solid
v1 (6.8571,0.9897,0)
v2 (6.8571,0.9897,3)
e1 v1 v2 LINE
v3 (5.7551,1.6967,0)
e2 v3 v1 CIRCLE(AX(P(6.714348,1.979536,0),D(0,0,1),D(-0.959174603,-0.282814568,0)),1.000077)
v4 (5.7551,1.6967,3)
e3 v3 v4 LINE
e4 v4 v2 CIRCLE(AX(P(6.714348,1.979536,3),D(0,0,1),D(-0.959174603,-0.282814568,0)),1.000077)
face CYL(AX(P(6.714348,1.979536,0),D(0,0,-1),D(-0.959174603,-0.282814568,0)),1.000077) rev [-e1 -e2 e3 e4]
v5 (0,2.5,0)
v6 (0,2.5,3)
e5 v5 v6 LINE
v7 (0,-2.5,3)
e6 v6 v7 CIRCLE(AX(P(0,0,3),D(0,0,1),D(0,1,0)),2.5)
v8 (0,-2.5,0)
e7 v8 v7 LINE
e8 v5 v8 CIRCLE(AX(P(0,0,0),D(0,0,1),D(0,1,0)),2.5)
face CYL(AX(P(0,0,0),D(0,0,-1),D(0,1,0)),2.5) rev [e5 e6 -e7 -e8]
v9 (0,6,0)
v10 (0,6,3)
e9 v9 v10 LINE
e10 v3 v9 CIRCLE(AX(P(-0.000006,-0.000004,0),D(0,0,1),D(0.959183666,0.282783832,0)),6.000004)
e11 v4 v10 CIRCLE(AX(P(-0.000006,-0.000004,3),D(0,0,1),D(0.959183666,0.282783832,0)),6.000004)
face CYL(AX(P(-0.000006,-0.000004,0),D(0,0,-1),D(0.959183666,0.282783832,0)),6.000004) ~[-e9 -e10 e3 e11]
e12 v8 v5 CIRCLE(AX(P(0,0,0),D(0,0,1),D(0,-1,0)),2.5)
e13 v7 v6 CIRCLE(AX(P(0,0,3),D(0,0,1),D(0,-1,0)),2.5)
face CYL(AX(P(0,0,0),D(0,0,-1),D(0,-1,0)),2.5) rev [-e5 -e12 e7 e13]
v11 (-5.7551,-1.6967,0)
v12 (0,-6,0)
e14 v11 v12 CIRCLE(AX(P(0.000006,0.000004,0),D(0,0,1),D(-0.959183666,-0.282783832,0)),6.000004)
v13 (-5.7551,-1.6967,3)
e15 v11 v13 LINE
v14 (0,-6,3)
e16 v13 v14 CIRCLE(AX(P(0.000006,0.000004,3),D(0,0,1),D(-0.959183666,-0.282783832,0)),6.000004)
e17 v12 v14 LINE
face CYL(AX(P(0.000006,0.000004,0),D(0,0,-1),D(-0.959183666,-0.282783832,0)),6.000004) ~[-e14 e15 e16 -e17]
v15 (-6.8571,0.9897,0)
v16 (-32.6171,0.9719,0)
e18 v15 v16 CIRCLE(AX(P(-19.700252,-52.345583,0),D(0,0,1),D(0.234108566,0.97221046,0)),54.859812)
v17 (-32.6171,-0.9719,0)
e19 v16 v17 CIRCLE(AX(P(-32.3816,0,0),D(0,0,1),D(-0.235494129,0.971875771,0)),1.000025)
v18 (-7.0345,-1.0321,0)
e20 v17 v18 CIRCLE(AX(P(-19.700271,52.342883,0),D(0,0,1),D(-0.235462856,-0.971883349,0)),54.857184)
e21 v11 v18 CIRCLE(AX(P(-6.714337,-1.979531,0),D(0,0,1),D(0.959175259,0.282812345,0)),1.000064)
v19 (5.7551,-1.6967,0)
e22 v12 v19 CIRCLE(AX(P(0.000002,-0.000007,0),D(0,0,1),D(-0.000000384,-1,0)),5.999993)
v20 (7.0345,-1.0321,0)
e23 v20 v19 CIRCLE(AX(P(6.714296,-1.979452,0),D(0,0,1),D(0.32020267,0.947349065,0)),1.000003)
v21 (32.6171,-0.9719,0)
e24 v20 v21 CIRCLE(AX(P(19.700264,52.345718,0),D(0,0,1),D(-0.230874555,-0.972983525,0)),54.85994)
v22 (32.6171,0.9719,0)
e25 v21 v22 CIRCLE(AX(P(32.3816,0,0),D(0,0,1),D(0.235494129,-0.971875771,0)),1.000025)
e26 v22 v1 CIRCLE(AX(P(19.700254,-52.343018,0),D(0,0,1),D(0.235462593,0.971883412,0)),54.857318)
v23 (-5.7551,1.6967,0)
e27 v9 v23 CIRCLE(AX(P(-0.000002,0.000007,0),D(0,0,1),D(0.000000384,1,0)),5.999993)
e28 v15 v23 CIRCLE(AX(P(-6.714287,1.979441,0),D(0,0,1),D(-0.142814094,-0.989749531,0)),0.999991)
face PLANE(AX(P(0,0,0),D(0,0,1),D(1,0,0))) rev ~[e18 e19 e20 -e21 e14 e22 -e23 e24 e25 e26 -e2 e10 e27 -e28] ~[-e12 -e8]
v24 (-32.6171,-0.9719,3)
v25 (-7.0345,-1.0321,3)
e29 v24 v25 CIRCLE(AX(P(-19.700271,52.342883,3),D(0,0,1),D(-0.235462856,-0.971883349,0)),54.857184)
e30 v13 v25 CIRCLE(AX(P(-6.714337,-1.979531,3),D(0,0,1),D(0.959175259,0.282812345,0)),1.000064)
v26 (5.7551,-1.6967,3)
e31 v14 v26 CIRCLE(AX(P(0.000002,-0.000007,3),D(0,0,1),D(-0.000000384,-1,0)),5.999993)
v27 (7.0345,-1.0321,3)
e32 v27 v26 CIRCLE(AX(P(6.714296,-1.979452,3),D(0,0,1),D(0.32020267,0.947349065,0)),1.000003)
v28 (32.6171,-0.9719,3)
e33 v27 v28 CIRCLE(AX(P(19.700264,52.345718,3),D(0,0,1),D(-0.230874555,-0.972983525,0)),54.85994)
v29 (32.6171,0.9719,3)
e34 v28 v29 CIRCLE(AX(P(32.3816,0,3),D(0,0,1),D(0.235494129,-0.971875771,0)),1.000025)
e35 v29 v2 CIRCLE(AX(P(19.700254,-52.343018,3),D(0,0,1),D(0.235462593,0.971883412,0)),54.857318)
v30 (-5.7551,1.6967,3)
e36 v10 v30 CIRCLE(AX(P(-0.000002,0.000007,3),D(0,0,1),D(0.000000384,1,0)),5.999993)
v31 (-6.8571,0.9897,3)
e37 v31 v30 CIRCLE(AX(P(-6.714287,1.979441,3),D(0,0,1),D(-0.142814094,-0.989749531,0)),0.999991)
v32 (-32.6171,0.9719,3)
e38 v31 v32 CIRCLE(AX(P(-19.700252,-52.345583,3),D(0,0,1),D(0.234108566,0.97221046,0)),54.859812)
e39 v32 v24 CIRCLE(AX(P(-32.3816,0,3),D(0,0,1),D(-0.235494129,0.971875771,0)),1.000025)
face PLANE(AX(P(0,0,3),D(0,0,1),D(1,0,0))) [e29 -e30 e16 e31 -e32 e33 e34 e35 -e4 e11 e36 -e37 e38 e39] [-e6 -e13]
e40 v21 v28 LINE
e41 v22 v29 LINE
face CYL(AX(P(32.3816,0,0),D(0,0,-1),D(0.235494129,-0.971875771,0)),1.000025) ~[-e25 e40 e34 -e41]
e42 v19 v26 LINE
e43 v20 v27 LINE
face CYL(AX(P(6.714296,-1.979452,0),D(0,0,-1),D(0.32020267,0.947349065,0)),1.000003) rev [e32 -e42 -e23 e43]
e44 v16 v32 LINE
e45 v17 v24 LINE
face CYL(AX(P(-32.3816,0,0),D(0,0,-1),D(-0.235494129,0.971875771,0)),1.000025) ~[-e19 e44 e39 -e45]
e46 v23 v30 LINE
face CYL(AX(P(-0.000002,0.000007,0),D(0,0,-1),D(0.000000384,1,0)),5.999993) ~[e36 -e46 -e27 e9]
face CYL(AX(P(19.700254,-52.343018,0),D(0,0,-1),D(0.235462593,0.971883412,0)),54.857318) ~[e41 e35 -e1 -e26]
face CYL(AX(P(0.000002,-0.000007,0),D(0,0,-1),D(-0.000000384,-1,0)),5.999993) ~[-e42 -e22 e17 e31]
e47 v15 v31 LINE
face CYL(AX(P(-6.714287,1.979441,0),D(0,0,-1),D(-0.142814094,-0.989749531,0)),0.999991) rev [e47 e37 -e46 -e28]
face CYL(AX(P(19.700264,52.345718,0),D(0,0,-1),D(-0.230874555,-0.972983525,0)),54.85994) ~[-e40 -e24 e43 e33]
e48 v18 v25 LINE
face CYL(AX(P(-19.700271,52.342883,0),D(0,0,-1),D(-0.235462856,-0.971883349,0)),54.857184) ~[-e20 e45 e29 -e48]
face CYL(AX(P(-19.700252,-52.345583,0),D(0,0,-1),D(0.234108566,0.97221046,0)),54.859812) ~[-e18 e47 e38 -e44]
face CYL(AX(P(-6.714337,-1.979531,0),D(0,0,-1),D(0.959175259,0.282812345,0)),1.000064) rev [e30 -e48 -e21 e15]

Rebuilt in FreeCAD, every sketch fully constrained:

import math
import FreeCAD as App
import Part
import Sketcher
Q = App.Units.Quantity

doc = App.newDocument("Part")
body = doc.addObject("PartDesign::Body", "Body")

sketch1 = body.newObject("Sketcher::SketchObject", "Sketch")
sketch1.AttachmentSupport = (doc.getObject("XY_Plane"), [""])
sketch1.MapMode = "FlatFace"
sketch1.addGeometry(Part.ArcOfCircle(Part.Circle(App.Vector(-19.700252, -52.345583, 0), App.Vector(0, 0, 1), 54.859812), math.radians(76.460918), math.radians(103.618264)), False)
sketch1.addGeometry(Part.ArcOfCircle(Part.Circle(App.Vector(-32.3816, 0, 0), App.Vector(0, 0, 1), 1.000025), math.radians(103.620752), math.radians(256.379248)), False)
sketch1.addGeometry(Part.ArcOfCircle(Part.Circle(App.Vector(-19.700271, 52.342883, 0), App.Vector(0, 0, 1), 54.857184), math.radians(-103.618908), math.radians(-76.650744)), False)
sketch1.addGeometry(Part.ArcOfCircle(Part.Circle(App.Vector(-6.7143, -1.9795, 0), App.Vector(0, 0, 1), 1.00002), math.radians(16.427047), math.radians(108.674103)), False)
sketch1.addGeometry(Part.ArcOfCircle(Part.Circle(App.Vector(0, 0, 0), App.Vector(0, 0, 1), 6), math.radians(-163.573599), math.radians(-90)), False)
sketch1.addGeometry(Part.ArcOfCircle(Part.Circle(App.Vector(0, 0, 0), App.Vector(0, 0, 1), 5.999997), math.radians(-90), math.radians(-16.426401)), False)
sketch1.addGeometry(Part.ArcOfCircle(Part.Circle(App.Vector(6.7143, -1.9795, 0), App.Vector(0, 0, 1), 1.000047), math.radians(71.325897), math.radians(163.572953)), False)
sketch1.addGeometry(Part.ArcOfCircle(Part.Circle(App.Vector(19.700264, 52.345718, 0), App.Vector(0, 0, 1), 54.85994), math.radians(-103.348566), math.radians(-76.381782)), False)
sketch1.addGeometry(Part.ArcOfCircle(Part.Circle(App.Vector(32.3816, 0, 0), App.Vector(0, 0, 1), 1.000025), math.radians(-76.379248), math.radians(76.379248)), False)
sketch1.addGeometry(Part.ArcOfCircle(Part.Circle(App.Vector(19.700254, -52.343018, 0), App.Vector(0, 0, 1), 54.857318), math.radians(76.381107), math.radians(103.539711)), False)
sketch1.addGeometry(Part.ArcOfCircle(Part.Circle(App.Vector(6.7143, 1.9795, 0), App.Vector(0, 0, 1), 1.00002), math.radians(-163.572953), math.radians(-81.790494)), False)
sketch1.addGeometry(Part.ArcOfCircle(Part.Circle(App.Vector(0, 0, 0), App.Vector(0, 0, 1), 6), math.radians(16.426401), math.radians(90)), False)
sketch1.addGeometry(Part.ArcOfCircle(Part.Circle(App.Vector(0, 0, 0), App.Vector(0, 0, 1), 5.999997), math.radians(90), math.radians(163.573599)), False)
sketch1.addGeometry(Part.ArcOfCircle(Part.Circle(App.Vector(-6.7143, 1.9795, 0), App.Vector(0, 0, 1), 1.000048), math.radians(-98.209506), math.radians(-16.427047)), False)
sketch1.addGeometry(Part.Circle(App.Vector(0, 0, 0), App.Vector(0, 0, 1), 2.5), False)
sketch1.addConstraint(Sketcher.Constraint("Tangent", 0, 2, 1, 1))
sketch1.addConstraint(Sketcher.Constraint("Tangent", 1, 2, 2, 1))
sketch1.addConstraint(Sketcher.Constraint("Coincident", 2, 2, 3, 2))
sketch1.addConstraint(Sketcher.Constraint("Tangent", 3, 1, 4, 1))
sketch1.addConstraint(Sketcher.Constraint("Tangent", 4, 2, 5, 1))
sketch1.addConstraint(Sketcher.Constraint("Tangent", 5, 2, 6, 2))
sketch1.addConstraint(Sketcher.Constraint("Coincident", 6, 1, 7, 1))
sketch1.addConstraint(Sketcher.Constraint("Tangent", 7, 2, 8, 1))
sketch1.addConstraint(Sketcher.Constraint("Tangent", 8, 2, 9, 1))
sketch1.addConstraint(Sketcher.Constraint("Coincident", 9, 2, 10, 2))
sketch1.addConstraint(Sketcher.Constraint("Tangent", 10, 1, 11, 1))
sketch1.addConstraint(Sketcher.Constraint("Tangent", 11, 2, 12, 1))
sketch1.addConstraint(Sketcher.Constraint("Tangent", 12, 2, 13, 2))
sketch1.addConstraint(Sketcher.Constraint("Coincident", 13, 1, 0, 1))
sketch1.addConstraint(Sketcher.Constraint("Coincident", 4, 3, -1, 1))
sketch1.addConstraint(Sketcher.Constraint("Coincident", 11, 3, -1, 1))
sketch1.addConstraint(Sketcher.Constraint("Coincident", 14, 3, -1, 1))
sketch1.addConstraint(Sketcher.Constraint("Equal", 1, 3))
sketch1.addConstraint(Sketcher.Constraint("Equal", 4, 5))
sketch1.addConstraint(Sketcher.Constraint("Equal", 3, 6))
sketch1.addConstraint(Sketcher.Constraint("Equal", 0, 7))
sketch1.addConstraint(Sketcher.Constraint("Equal", 6, 8))
sketch1.addConstraint(Sketcher.Constraint("Equal", 2, 9))
sketch1.addConstraint(Sketcher.Constraint("Equal", 8, 10))
sketch1.addConstraint(Sketcher.Constraint("Equal", 5, 11))
sketch1.addConstraint(Sketcher.Constraint("Equal", 11, 12))
sketch1.addConstraint(Sketcher.Constraint("Equal", 10, 13))
sketch1.addConstraint(Sketcher.Constraint("Symmetric", 0, 3, 7, 3, -1, 1))
sketch1.addConstraint(Sketcher.Constraint("Symmetric", 2, 3, 9, 3, -1, 1))
sketch1.addConstraint(Sketcher.Constraint("Symmetric", 2, 2, 6, 1, -2))
sketch1.addConstraint(Sketcher.Constraint("PointOnObject", 1, 3, -1))
sketch1.addConstraint(Sketcher.Constraint("PointOnObject", 4, 2, -2))
sketch1.addConstraint(Sketcher.Constraint("PointOnObject", 11, 2, -2))
sketch1.addConstraint(Sketcher.Constraint("Horizontal", 10, 3, 13, 3))
sketch1.addConstraint(Sketcher.Constraint("Vertical", 6, 3, 10, 3))
sketch1.addConstraint(Sketcher.Constraint("Diameter", 14, Q("5 mm")))
sketch1.addConstraint(Sketcher.Constraint("Radius", 1, Q("1 mm")))
sketch1.addConstraint(Sketcher.Constraint("Radius", 4, Q("6 mm")))
sketch1.addConstraint(Sketcher.Constraint("Radius", 7, Q("54.86 mm")))
sketch1.addConstraint(Sketcher.Constraint("Radius", 2, Q("54.8572 mm")))
sketch1.addConstraint(Sketcher.Constraint("DistanceY", -1, 1, 2, 3, Q("52.343 mm")))
sketch1.addConstraint(Sketcher.Constraint("DistanceX", 0, 2, -1, 1, Q("32.617 mm")))
sketch1.addConstraint(Sketcher.Constraint("DistanceY", 2, 2, -1, 1, Q("1.032 mm")))
pad1 = body.newObject("PartDesign::Pad", "Pad")
pad1.Profile = sketch1
pad1.Length = 3

doc.recompute()
